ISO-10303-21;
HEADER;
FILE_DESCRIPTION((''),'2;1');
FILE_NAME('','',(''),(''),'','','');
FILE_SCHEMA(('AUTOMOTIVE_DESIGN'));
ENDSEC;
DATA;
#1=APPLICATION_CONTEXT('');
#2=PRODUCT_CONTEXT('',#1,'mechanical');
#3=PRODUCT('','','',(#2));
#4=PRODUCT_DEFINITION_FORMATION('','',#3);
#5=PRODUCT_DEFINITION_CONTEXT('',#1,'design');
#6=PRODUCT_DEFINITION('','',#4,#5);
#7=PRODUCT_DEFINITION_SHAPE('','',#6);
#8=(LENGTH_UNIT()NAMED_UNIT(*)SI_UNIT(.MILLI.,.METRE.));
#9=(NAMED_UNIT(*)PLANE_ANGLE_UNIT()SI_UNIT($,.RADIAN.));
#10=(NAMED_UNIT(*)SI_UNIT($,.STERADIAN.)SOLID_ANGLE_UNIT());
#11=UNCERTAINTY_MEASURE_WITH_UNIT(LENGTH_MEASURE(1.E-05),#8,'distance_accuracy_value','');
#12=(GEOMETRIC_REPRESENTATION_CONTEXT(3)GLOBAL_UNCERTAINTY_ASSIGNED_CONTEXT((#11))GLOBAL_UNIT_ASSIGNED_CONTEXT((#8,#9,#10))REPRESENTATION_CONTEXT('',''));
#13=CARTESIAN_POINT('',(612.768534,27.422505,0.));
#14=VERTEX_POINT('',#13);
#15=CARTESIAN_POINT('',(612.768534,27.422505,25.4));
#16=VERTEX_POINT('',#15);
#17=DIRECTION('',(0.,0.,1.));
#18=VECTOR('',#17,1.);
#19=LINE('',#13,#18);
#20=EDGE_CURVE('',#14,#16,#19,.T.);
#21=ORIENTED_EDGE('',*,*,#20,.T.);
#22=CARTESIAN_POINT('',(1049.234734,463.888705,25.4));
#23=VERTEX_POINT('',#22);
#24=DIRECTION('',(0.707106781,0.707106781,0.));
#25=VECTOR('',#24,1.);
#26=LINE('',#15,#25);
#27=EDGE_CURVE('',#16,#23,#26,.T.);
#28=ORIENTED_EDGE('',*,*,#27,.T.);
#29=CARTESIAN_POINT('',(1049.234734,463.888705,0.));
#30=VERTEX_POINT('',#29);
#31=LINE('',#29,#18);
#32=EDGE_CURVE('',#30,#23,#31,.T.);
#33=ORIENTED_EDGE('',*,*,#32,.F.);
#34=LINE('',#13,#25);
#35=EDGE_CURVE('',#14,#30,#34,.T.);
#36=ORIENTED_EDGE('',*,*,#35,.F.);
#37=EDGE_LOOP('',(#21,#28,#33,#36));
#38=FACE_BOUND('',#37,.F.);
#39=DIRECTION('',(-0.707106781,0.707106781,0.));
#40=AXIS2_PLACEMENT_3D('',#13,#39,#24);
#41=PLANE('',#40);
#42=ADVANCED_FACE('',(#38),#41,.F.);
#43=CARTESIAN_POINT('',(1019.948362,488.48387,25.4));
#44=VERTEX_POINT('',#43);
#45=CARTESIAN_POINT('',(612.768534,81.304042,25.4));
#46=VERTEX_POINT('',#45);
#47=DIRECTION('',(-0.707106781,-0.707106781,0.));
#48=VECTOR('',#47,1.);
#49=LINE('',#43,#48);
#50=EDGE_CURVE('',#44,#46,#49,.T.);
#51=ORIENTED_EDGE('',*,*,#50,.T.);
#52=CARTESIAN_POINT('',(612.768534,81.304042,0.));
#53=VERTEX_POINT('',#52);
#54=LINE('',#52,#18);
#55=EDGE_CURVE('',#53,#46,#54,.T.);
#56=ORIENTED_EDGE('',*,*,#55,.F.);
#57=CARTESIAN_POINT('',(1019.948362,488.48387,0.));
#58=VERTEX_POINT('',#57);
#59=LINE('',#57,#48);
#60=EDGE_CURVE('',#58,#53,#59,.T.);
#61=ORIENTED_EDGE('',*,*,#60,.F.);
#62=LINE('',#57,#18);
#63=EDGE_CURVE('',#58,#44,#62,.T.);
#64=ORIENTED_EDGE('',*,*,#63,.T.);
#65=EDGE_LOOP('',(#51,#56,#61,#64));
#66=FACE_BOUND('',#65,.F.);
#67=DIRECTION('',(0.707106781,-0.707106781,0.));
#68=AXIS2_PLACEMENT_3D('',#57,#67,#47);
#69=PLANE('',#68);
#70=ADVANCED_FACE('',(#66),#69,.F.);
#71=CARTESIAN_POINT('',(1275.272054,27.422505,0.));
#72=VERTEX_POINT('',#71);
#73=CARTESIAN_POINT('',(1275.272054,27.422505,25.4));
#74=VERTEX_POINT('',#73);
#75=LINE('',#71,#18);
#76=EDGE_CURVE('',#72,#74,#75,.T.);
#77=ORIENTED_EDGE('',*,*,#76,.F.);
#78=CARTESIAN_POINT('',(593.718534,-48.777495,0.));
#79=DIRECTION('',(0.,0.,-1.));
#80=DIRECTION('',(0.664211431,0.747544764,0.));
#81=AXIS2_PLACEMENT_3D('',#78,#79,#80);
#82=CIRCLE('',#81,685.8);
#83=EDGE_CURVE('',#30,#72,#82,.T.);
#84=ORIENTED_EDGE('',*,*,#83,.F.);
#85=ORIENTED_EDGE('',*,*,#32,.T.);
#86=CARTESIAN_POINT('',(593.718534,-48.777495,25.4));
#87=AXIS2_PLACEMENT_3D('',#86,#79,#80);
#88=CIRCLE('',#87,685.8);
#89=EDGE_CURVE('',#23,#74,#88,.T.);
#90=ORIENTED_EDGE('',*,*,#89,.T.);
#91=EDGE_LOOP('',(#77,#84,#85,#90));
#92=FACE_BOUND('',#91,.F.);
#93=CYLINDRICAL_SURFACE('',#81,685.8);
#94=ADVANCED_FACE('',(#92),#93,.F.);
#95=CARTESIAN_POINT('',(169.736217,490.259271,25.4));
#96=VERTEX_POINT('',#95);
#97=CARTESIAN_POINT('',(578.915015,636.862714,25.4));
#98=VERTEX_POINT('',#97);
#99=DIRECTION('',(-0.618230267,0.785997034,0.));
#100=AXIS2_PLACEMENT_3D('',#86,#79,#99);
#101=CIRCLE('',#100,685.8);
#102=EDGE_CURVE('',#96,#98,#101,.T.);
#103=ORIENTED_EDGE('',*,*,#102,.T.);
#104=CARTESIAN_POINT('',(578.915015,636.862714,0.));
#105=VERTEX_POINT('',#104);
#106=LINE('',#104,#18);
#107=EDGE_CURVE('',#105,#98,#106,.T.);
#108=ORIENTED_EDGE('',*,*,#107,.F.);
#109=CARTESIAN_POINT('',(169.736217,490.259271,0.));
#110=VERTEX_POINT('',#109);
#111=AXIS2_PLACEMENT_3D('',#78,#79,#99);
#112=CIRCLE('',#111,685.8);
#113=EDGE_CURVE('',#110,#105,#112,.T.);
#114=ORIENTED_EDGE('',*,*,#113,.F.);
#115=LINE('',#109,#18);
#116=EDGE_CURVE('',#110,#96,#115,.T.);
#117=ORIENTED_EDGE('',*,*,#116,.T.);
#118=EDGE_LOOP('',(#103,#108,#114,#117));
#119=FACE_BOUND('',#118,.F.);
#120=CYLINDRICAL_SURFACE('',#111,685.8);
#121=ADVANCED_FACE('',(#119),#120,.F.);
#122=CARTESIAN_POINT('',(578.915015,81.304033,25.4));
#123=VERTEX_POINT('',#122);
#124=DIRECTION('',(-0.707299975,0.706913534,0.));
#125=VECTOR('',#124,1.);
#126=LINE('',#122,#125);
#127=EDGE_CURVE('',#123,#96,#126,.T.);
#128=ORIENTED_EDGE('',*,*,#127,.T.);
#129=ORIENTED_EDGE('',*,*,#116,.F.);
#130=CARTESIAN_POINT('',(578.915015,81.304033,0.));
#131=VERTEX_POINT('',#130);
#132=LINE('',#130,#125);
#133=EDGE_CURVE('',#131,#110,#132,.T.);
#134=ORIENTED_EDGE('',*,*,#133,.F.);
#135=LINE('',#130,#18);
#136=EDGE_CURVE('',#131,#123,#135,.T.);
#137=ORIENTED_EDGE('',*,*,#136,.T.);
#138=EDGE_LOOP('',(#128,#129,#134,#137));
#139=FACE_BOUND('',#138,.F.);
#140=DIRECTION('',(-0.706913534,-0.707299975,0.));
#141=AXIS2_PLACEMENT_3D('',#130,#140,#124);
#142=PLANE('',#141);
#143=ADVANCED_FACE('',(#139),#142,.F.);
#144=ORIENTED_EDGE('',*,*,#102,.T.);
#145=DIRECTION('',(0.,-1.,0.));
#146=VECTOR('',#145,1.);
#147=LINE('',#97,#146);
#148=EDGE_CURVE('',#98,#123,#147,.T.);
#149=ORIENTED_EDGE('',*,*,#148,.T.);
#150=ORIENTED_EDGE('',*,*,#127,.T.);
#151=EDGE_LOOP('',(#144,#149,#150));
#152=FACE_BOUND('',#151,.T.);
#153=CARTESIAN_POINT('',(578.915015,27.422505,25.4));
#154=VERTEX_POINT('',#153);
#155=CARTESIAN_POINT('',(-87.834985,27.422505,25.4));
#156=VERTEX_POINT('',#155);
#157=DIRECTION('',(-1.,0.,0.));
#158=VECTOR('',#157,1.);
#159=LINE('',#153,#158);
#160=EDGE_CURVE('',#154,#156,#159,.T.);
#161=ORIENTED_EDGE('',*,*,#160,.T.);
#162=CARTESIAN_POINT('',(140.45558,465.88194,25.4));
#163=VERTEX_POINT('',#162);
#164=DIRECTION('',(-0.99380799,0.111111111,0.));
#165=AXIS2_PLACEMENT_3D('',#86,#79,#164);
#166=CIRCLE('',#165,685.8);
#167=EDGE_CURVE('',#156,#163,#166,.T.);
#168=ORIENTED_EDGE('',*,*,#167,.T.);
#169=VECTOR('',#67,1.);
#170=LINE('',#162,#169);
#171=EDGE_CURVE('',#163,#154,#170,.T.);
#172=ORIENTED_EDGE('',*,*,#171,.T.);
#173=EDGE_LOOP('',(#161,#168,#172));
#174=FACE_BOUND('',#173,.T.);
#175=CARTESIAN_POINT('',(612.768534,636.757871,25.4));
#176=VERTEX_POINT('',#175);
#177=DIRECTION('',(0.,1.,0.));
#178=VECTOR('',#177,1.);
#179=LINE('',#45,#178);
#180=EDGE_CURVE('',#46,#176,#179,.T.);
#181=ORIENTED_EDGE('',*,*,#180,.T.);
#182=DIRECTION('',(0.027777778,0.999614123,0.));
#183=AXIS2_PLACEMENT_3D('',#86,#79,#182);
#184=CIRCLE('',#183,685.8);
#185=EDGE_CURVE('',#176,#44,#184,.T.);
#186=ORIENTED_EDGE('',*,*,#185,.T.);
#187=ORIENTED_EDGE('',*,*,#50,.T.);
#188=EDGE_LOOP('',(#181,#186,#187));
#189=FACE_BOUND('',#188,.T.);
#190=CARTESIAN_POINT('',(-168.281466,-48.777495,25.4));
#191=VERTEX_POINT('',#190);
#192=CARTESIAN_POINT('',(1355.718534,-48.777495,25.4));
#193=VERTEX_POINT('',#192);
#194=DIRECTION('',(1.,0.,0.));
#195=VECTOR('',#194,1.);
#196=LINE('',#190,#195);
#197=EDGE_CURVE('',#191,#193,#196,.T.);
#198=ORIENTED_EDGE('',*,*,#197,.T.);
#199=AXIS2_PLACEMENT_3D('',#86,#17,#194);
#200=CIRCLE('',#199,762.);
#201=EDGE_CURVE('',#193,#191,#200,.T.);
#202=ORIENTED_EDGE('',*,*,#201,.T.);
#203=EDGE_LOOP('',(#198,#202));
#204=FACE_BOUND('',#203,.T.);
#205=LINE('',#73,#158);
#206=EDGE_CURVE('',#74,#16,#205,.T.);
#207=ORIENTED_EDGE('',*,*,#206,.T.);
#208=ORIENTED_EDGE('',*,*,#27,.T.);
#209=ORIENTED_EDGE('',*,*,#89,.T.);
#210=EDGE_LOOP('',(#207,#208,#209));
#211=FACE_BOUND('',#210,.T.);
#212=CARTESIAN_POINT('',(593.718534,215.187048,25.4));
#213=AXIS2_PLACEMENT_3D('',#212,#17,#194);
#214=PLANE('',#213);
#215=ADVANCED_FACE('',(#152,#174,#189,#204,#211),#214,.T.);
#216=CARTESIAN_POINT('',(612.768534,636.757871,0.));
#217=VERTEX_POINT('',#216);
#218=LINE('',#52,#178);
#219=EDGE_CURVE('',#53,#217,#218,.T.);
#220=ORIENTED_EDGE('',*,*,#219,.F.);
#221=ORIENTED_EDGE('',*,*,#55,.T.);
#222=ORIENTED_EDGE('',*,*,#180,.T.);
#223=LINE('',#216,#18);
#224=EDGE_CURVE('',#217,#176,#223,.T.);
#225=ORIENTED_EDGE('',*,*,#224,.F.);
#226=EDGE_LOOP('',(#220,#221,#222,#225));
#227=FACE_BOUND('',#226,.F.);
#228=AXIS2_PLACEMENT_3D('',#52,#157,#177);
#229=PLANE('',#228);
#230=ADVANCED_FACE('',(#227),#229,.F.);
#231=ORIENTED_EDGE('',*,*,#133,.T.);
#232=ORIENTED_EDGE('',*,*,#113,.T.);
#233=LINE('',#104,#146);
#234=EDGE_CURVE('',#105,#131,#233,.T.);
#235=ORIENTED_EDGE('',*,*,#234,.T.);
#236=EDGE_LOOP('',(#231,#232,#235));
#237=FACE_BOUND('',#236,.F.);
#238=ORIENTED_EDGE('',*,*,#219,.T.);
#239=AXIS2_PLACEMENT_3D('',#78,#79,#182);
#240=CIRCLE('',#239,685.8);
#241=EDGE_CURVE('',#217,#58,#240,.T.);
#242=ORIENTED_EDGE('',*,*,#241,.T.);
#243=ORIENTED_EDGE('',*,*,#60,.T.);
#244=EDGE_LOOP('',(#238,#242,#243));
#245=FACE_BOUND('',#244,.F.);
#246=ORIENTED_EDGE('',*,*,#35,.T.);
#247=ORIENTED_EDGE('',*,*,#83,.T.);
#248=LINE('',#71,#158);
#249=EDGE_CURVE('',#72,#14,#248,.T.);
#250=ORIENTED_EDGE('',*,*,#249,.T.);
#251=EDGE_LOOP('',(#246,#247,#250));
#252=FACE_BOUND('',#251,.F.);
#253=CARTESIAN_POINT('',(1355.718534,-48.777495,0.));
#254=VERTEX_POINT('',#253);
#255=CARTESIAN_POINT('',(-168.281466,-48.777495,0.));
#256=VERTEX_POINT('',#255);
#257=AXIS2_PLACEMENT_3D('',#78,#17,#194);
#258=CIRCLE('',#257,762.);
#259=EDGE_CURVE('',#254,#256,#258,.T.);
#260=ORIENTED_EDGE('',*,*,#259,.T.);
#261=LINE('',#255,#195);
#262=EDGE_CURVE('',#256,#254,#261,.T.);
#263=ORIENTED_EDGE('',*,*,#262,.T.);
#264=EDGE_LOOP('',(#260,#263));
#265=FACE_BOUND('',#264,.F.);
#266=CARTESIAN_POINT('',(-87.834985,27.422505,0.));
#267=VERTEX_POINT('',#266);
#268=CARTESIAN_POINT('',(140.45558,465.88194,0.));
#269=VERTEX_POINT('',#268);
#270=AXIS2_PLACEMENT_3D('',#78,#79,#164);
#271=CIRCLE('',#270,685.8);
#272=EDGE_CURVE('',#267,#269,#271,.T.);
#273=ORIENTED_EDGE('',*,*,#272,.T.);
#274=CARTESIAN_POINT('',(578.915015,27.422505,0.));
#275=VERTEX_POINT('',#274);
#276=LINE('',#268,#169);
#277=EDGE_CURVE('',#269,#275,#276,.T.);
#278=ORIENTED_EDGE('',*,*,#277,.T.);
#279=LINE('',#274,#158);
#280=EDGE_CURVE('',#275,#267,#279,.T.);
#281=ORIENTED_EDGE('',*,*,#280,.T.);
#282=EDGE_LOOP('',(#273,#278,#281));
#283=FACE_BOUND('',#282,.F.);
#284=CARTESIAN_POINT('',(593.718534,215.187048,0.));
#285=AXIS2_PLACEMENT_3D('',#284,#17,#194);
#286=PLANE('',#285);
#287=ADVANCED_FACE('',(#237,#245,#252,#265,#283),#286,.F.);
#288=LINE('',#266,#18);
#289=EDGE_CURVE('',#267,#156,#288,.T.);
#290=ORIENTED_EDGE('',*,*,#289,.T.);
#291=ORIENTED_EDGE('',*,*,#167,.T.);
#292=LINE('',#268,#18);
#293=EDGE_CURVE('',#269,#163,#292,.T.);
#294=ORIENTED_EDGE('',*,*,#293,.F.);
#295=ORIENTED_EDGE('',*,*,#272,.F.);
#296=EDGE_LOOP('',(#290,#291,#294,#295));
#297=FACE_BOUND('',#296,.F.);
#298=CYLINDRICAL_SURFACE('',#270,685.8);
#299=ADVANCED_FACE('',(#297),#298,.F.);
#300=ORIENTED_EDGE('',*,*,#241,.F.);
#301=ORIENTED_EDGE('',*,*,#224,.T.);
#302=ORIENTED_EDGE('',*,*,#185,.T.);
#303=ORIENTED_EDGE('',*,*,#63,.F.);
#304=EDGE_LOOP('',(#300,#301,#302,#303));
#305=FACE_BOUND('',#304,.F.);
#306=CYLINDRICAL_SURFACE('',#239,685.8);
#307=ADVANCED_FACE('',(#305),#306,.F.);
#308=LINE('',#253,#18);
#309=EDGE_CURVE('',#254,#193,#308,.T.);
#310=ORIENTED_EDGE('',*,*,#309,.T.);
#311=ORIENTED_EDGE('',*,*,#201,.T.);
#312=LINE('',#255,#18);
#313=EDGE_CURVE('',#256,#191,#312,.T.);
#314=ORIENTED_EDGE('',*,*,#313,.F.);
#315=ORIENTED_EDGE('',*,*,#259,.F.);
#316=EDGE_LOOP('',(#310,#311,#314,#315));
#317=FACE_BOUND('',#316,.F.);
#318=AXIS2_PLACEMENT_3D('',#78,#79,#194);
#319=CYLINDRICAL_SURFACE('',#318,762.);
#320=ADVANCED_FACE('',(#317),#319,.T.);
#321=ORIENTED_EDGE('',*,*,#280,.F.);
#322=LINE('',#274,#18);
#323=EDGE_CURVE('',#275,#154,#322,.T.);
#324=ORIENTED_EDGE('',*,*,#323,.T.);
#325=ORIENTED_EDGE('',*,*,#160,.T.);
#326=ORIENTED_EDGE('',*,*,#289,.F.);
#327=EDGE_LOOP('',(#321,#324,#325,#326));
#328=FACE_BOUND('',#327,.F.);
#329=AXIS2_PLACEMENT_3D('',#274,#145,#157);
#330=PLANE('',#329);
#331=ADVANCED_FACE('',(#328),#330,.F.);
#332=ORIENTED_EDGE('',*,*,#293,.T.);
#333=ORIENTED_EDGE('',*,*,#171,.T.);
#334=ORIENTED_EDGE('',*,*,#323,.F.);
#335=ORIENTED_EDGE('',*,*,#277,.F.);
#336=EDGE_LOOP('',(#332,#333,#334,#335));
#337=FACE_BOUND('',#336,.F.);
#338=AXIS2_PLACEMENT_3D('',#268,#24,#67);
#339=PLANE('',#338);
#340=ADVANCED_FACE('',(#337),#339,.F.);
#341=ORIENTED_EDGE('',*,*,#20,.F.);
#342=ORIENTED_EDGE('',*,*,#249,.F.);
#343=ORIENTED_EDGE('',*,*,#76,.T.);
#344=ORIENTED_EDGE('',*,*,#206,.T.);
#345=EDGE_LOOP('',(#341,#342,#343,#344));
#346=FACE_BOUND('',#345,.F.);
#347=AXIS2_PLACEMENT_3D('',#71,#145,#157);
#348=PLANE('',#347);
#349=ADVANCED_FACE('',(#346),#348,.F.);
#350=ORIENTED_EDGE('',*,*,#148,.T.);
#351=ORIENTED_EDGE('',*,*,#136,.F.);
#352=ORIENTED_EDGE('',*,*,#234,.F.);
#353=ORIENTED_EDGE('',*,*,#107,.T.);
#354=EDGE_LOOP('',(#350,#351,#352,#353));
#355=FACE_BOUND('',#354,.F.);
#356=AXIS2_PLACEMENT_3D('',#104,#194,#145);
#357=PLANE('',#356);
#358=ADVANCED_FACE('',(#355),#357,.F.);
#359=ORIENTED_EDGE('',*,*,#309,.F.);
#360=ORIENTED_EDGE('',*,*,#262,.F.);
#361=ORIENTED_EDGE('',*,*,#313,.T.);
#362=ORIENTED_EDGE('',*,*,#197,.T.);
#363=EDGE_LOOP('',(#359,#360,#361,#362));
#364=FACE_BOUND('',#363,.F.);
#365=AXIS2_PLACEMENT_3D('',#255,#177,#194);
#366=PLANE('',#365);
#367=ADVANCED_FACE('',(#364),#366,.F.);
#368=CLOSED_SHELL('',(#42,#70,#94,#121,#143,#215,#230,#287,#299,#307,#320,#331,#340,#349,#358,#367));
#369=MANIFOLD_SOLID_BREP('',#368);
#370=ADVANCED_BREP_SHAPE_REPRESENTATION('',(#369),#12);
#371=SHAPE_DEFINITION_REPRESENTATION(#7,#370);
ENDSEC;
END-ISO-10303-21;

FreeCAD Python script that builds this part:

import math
import FreeCAD as App
import Part
import Sketcher

V = App.Vector
Q = App.Units.Quantity

doc = App.newDocument("Part")
params = doc.addObject("Spreadsheet::Sheet", "Params")
for row, (alias, value) in enumerate([
    ("sketch1_radius", "30 in"),
    ("sketch1_radius2", "27 in"),
    ("sketch1_width", "26.25 in"),
    ("pad1_length", "1 in"),
], start=1):
    params.set(f"A{row}", alias)
    params.set(f"B{row}", "=" + value)
    params.setAlias(f"B{row}", alias)

body = doc.addObject("PartDesign::Body", "Body")

# Sketch on XY plane
sketch1 = body.newObject("Sketcher::SketchObject", "Sketch")
sketch1.AttachmentSupport = (doc.getObject("XY_Plane"), [""])
sketch1.MapMode = "FlatFace"
sketch1.addGeometry(Part.LineSegment(V(-168.281466, -48.777495, 0), V(1355.718534, -48.777495, 0)), False)
sketch1.addGeometry(Part.ArcOfCircle(Part.Circle(V(593.718534, -48.777495, 0), V(0, 0, 1), 762), math.radians(0), math.radians(180)), False)
sketch1.addGeometry(Part.LineSegment(V(140.45558, 465.88194, 0), V(578.915015, 27.422505, 0)), False)
sketch1.addGeometry(Part.LineSegment(V(578.915015, 27.422505, 0), V(-87.834985, 27.422505, 0)), False)
sketch1.addGeometry(Part.ArcOfCircle(Part.Circle(V(593.718534, -48.777495, 0), V(0, 0, 1), 685.8), math.radians(131.370522), math.radians(173.62063)), False)
sketch1.addGeometry(Part.LineSegment(V(612.768534, 27.422505, 0), V(1049.234734, 463.888705, 0)), False)
sketch1.addGeometry(Part.ArcOfCircle(Part.Circle(V(593.718534, -48.777495, 0), V(0, 0, 1), 685.8), math.radians(6.37937), math.radians(48.378143)), False)
sketch1.addGeometry(Part.LineSegment(V(1275.272054, 27.422505, 0), V(612.768534, 27.422505, 0)), False)
sketch1.addGeometry(Part.ArcOfCircle(Part.Circle(V(593.718534, -48.777495, 0), V(0, 0, 1), 685.8), math.radians(91.236869), math.radians(128.187014)), False)
sketch1.addGeometry(Part.LineSegment(V(578.915015, 636.862714, 0), V(578.915015, 81.304033, 0)), False)
sketch1.addGeometry(Part.LineSegment(V(578.915015, 81.304033, 0), V(169.736217, 490.259271, 0)), False)
sketch1.addGeometry(Part.ArcOfCircle(Part.Circle(V(593.718534, -48.777495, 0), V(0, 0, 1), 685.8), math.radians(51.573698), math.radians(88.408246)), False)
sketch1.addGeometry(Part.LineSegment(V(1019.948362, 488.48387, 0), V(612.768534, 81.304042, 0)), False)
sketch1.addGeometry(Part.LineSegment(V(612.768534, 81.304042, 0), V(612.768534, 636.757871, 0)), False)
sketch1.addConstraint(Sketcher.Constraint("Coincident", 0, 1, 1, 2))
sketch1.addConstraint(Sketcher.Constraint("Coincident", 1, 1, 0, 2))
sketch1.addConstraint(Sketcher.Constraint("Coincident", 2, 2, 3, 1))
sketch1.addConstraint(Sketcher.Constraint("Coincident", 3, 2, 4, 2))
sketch1.addConstraint(Sketcher.Constraint("Coincident", 4, 1, 2, 1))
sketch1.addConstraint(Sketcher.Constraint("Coincident", 5, 2, 6, 2))
sketch1.addConstraint(Sketcher.Constraint("Coincident", 6, 1, 7, 1))
sketch1.addConstraint(Sketcher.Constraint("Coincident", 7, 2, 5, 1))
sketch1.addConstraint(Sketcher.Constraint("Coincident", 8, 1, 9, 1))
sketch1.addConstraint(Sketcher.Constraint("Coincident", 9, 2, 10, 1))
sketch1.addConstraint(Sketcher.Constraint("Coincident", 10, 2, 8, 2))
sketch1.addConstraint(Sketcher.Constraint("Coincident", 11, 1, 12, 1))
sketch1.addConstraint(Sketcher.Constraint("Coincident", 12, 2, 13, 1))
sketch1.addConstraint(Sketcher.Constraint("Coincident", 13, 2, 11, 2))
sketch1.addConstraint(Sketcher.Constraint("Horizontal", 0))
sketch1.addConstraint(Sketcher.Constraint("Horizontal", 3))
sketch1.addConstraint(Sketcher.Constraint("Horizontal", 7))
sketch1.addConstraint(Sketcher.Constraint("Vertical", 9))
sketch1.addConstraint(Sketcher.Constraint("Vertical", 13))
sketch1.addConstraint(Sketcher.Constraint("Coincident", 4, 3, 1, 3))
sketch1.addConstraint(Sketcher.Constraint("Coincident", 6, 3, 1, 3))
sketch1.addConstraint(Sketcher.Constraint("Coincident", 8, 3, 1, 3))
sketch1.addConstraint(Sketcher.Constraint("Coincident", 11, 3, 1, 3))
sketch1.addConstraint(Sketcher.Constraint("Equal", 4, 6))
sketch1.addConstraint(Sketcher.Constraint("Equal", 6, 8))
sketch1.addConstraint(Sketcher.Constraint("Equal", 8, 11))
sketch1.addConstraint(Sketcher.Constraint("Perpendicular", 2, 5))
sketch1.addConstraint(Sketcher.Constraint("Parallel", 5, 12))
sketch1.addConstraint(Sketcher.Constraint("Horizontal", 11, 3, 0, 1))
sketch1.addConstraint(Sketcher.Constraint("Vertical", 7, 2, 12, 2))
sketch1.addConstraint(Sketcher.Constraint("Radius", 1, Q("30 in")))
sketch1.addConstraint(Sketcher.Constraint("Radius", 4, Q("27 in")))
sketch1.addConstraint(Sketcher.Constraint("Angle", 2, Q("-45 deg")))
sketch1.addConstraint(Sketcher.Constraint("DistanceY", 6, 3, 2, 2, Q("3 in")))
sketch1.addConstraint(Sketcher.Constraint("DistanceY", 6, 3, 7, 2, Q("3 in")))
sketch1.addConstraint(Sketcher.Constraint("DistanceX", 3, 2, 3, 1, Q("26.25 in")))
sketch1.addConstraint(Sketcher.Constraint("DistanceX", 6, 3, 7, 2, Q("0.75 in")))
sketch1.addConstraint(Sketcher.Constraint("DistanceY", 9, 2, 10, 2, Q("16.1005999 in")))
sketch1.addConstraint(Sketcher.Constraint("DistanceY", 9, 2, 9, 1, 555.558681))
sketch1.addConstraint(Sketcher.Constraint("DistanceY", 13, 1, 13, 2, 555.453829))
sketch1.addConstraint(Sketcher.Constraint("DistanceY", 10, 2, 13, 2, 146.4986))
sketch1.addConstraint(Sketcher.Constraint("DistanceY", -1, 1, 10, 2, 490.259271))
sketch1.addConstraint(Sketcher.Constraint("DistanceX", -1, 1, 1, 3, 593.718534))
sketch1.setExpression("Constraints[30]", "Params.sketch1_radius")
sketch1.setExpression("Constraints[31]", "Params.sketch1_radius2")
sketch1.setExpression("Constraints[35]", "Params.sketch1_width")
pad1 = body.newObject("PartDesign::Pad", "Pad")
pad1.Profile = sketch1
pad1.setExpression("Length", "Params.pad1_length")

doc.recompute()
